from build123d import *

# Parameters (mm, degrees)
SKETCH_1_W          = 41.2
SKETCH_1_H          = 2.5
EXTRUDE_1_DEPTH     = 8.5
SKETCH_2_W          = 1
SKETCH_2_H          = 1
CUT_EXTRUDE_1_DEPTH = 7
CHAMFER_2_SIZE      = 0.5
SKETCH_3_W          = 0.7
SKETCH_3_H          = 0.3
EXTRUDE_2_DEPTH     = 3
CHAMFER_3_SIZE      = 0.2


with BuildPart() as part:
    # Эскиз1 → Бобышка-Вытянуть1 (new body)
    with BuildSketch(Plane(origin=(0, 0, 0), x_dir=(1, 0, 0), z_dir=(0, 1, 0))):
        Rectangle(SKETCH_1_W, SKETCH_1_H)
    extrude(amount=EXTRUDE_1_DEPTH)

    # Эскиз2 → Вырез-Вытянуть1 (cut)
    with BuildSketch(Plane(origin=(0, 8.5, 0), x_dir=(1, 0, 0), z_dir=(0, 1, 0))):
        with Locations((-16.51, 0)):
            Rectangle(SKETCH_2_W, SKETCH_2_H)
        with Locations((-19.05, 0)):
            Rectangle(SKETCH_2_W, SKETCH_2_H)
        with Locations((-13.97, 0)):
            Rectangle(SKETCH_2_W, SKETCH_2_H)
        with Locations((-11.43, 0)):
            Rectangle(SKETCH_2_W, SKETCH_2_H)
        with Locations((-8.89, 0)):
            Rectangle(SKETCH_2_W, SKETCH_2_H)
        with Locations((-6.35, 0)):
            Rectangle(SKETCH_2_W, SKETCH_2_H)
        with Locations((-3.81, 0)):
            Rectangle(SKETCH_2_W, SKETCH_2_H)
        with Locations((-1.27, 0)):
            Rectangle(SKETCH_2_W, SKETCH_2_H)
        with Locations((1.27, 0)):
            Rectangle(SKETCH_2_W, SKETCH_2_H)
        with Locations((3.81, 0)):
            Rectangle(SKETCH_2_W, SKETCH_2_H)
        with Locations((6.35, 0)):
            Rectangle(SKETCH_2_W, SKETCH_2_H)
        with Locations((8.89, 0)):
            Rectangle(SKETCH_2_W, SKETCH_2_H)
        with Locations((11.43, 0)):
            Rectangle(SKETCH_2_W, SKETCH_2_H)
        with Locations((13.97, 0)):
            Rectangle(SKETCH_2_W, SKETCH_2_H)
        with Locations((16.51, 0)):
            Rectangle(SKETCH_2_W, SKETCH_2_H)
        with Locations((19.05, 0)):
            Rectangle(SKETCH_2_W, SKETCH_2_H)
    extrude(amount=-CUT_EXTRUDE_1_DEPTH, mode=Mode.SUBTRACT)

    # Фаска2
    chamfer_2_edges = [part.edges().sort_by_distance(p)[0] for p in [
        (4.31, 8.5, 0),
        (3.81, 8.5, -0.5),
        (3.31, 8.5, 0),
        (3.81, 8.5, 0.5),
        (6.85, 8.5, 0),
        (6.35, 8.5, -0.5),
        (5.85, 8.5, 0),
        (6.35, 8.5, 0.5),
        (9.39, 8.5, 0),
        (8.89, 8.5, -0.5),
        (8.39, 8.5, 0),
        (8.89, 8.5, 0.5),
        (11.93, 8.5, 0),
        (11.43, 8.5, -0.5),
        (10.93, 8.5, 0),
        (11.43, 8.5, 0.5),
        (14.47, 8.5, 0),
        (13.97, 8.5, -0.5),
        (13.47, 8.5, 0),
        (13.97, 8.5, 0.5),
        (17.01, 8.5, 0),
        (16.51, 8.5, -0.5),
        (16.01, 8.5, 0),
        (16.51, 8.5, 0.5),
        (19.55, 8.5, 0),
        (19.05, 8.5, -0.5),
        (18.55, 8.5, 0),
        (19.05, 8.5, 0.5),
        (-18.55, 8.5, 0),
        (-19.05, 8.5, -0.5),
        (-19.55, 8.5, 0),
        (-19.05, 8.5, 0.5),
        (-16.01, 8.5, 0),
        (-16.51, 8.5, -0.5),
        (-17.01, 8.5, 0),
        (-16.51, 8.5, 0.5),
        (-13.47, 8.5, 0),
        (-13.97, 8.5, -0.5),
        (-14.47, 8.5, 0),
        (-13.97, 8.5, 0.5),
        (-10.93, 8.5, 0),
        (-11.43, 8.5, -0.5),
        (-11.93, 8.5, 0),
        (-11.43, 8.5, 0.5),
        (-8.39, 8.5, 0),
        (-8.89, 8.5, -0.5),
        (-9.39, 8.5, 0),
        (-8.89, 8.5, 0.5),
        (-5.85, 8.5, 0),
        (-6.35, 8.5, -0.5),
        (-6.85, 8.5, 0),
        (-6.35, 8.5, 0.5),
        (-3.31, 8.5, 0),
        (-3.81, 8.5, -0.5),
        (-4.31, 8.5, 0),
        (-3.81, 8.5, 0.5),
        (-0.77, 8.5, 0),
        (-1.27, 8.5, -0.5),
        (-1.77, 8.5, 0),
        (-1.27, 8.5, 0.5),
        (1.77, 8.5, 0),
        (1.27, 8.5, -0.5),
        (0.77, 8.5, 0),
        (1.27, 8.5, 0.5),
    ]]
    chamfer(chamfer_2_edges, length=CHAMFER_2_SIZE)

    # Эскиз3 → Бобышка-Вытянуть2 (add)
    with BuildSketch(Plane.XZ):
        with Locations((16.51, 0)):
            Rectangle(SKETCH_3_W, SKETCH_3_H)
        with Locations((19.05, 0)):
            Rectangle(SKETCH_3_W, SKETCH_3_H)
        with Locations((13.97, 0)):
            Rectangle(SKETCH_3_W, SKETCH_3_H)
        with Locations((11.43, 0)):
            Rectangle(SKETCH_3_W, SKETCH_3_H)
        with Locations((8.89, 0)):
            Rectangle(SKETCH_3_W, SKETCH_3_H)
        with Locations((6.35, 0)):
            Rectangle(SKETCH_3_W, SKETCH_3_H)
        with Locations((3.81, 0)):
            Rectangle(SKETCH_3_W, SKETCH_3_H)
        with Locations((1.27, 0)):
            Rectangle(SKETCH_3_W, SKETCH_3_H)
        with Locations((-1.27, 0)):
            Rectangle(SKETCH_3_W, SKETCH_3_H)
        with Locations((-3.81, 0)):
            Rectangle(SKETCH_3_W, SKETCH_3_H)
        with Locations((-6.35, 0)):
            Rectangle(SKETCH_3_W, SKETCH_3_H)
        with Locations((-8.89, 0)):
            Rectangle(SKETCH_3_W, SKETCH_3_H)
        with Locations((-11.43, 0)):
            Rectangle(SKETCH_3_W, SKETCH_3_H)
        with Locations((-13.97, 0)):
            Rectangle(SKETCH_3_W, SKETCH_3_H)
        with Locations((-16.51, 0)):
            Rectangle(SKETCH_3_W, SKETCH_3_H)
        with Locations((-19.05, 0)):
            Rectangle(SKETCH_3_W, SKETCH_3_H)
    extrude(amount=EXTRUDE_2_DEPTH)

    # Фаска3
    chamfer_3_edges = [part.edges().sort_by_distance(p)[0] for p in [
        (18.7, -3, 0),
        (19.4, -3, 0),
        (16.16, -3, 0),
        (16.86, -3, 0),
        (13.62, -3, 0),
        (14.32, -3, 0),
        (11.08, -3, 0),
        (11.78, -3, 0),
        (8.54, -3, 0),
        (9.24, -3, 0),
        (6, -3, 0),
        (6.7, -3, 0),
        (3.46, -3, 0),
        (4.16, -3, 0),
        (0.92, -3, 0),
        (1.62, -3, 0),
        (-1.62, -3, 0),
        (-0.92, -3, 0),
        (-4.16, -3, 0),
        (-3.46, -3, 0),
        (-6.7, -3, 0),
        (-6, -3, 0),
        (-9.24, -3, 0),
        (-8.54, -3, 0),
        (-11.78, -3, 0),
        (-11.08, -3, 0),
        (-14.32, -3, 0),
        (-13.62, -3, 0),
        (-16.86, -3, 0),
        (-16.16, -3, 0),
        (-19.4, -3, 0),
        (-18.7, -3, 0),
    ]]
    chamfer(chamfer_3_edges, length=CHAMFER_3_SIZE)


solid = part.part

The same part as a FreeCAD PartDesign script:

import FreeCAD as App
import Part
import Sketcher

V = App.Vector
Q = App.Units.Quantity


def edges_at(feature, points):
    """Names of the edges that pass closest to the given points."""
    edges = feature.Shape.Edges
    near = lambda p: min(range(len(edges)), key=lambda i: edges[i].distToShape(Part.Vertex(*p))[0])
    return sorted({f"Edge{near(p) + 1}" for p in points})


def add_polygon(sketch, points):
    """Adds a closed chain of lines whose ends are joined by coincident constraints."""
    first, n = sketch.GeometryCount, len(points)
    for a, b in zip(points, points[1:] + points[:1]):
        sketch.addGeometry(Part.LineSegment(App.Vector(*a, 0), App.Vector(*b, 0)), False)
    for i in range(n):
        sketch.addConstraint(Sketcher.Constraint("Coincident", first + i, 2, first + (i + 1) % n, 1))

doc = App.newDocument("Part")
body = doc.addObject("PartDesign::Body", "Body")

# Sketch on XZ plane
sketch1 = body.newObject("Sketcher::SketchObject", "Sketch")
sketch1.AttachmentSupport = (doc.getObject("XZ_Plane"), [""])
sketch1.MapMode = "FlatFace"
add_polygon(sketch1, [(-20.6, -1.2), (-20.6, 1.2), (20.6, 1.2), (20.6, -1.2)])  # lines 0-3
sketch1.addConstraint([
    Sketcher.Constraint("Vertical", 0),
    Sketcher.Constraint("Horizontal", 1),
    Sketcher.Constraint("Vertical", 2),
    Sketcher.Constraint("Horizontal", 3),
    Sketcher.Constraint("Symmetric", 0, 2, 2, 2, -1, 1),
    Sketcher.Constraint("DistanceX", 1, 1, 1, 2, Q("41.2 mm")),
    Sketcher.Constraint("DistanceY", 0, 1, 0, 2, Q("2.5 mm")),
])
pad1 = body.newObject("PartDesign::Pad", "Pad")
pad1.Profile = sketch1
pad1.Length = 8.5
pad1.Reversed = True

# Sketch on XZ plane
sketch2 = body.newObject("Sketcher::SketchObject", "Sketch001")
sketch2.AttachmentSupport = (doc.getObject("XZ_Plane"), [""])
sketch2.MapMode = "FlatFace"
sketch2.AttachmentOffset = App.Placement(V(0, 0, -8.5), App.Rotation())
add_polygon(sketch2, [(-17, -0.5), (-17, 0.5), (-16, 0.5), (-16, -0.5)])  # lines 0-3
add_polygon(sketch2, [(-19.6, -0.5), (-19.6, 0.5), (-18.6, 0.5), (-18.6, -0.5)])  # lines 4-7
add_polygon(sketch2, [(-14.5, -0.5), (-14.5, 0.5), (-13.5, 0.5), (-13.5, -0.5)])  # lines 8-11
add_polygon(sketch2, [(-11.9, -0.5), (-11.9, 0.5), (-10.9, 0.5), (-10.9, -0.5)])  # lines 12-15
add_polygon(sketch2, [(-9.4, -0.5), (-9.4, 0.5), (-8.4, 0.5), (-8.4, -0.5)])  # lines 16-19
add_polygon(sketch2, [(-6.8, -0.5), (-6.8, 0.5), (-5.8, 0.5), (-5.8, -0.5)])  # lines 20-23
add_polygon(sketch2, [(-4.3, -0.5), (-4.3, 0.5), (-3.3, 0.5), (-3.3, -0.5)])  # lines 24-27
add_polygon(sketch2, [(-1.8, -0.5), (-1.8, 0.5), (-0.8, 0.5), (-0.8, -0.5)])  # lines 28-31
add_polygon(sketch2, [(0.8, -0.5), (0.8, 0.5), (1.8, 0.5), (1.8, -0.5)])  # lines 32-35
add_polygon(sketch2, [(3.3, -0.5), (3.3, 0.5), (4.3, 0.5), (4.3, -0.5)])  # lines 36-39
add_polygon(sketch2, [(5.8, -0.5), (5.8, 0.5), (6.8, 0.5), (6.8, -0.5)])  # lines 40-43
add_polygon(sketch2, [(8.4, -0.5), (8.4, 0.5), (9.4, 0.5), (9.4, -0.5)])  # lines 44-47
add_polygon(sketch2, [(10.9, -0.5), (10.9, 0.5), (11.9, 0.5), (11.9, -0.5)])  # lines 48-51
add_polygon(sketch2, [(13.5, -0.5), (13.5, 0.5), (14.5, 0.5), (14.5, -0.5)])  # lines 52-55
add_polygon(sketch2, [(16, -0.5), (16, 0.5), (17, 0.5), (17, -0.5)])  # lines 56-59
add_polygon(sketch2, [(18.6, -0.5), (18.6, 0.5), (19.6, 0.5), (19.6, -0.5)])  # lines 60-63
sketch2.addConstraint([
    Sketcher.Constraint("Vertical", 0),
    Sketcher.Constraint("Horizontal", 1),
    Sketcher.Constraint("Vertical", 2),
    Sketcher.Constraint("Horizontal", 3),
    Sketcher.Constraint("Vertical", 4),
    Sketcher.Constraint("Horizontal", 5),
    Sketcher.Constraint("Vertical", 6),
    Sketcher.Constraint("Horizontal", 7),
    Sketcher.Constraint("Vertical", 8),
    Sketcher.Constraint("Horizontal", 9),
    Sketcher.Constraint("Vertical", 10),
    Sketcher.Constraint("Horizontal", 11),
    Sketcher.Constraint("Vertical", 12),
    Sketcher.Constraint("Horizontal", 13),
    Sketcher.Constraint("Vertical", 14),
    Sketcher.Constraint("Horizontal", 15),
    Sketcher.Constraint("Vertical", 16),
    Sketcher.Constraint("Horizontal", 17),
    Sketcher.Constraint("Vertical", 18),
    Sketcher.Constraint("Horizontal", 19),
    Sketcher.Constraint("Vertical", 20),
    Sketcher.Constraint("Horizontal", 21),
    Sketcher.Constraint("Vertical", 22),
    Sketcher.Constraint("Horizontal", 23),
    Sketcher.Constraint("Vertical", 24),
    Sketcher.Constraint("Horizontal", 25),
    Sketcher.Constraint("Vertical", 26),
    Sketcher.Constraint("Horizontal", 27),
    Sketcher.Constraint("Vertical", 28),
    Sketcher.Constraint("Horizontal", 29),
    Sketcher.Constraint("Vertical", 30),
    Sketcher.Constraint("Horizontal", 31),
    Sketcher.Constraint("Vertical", 32),
    Sketcher.Constraint("Horizontal", 33),
    Sketcher.Constraint("Vertical", 34),
    Sketcher.Constraint("Horizontal", 35),
    Sketcher.Constraint("Vertical", 36),
    Sketcher.Constraint("Horizontal", 37),
    Sketcher.Constraint("Vertical", 38),
    Sketcher.Constraint("Horizontal", 39),
    Sketcher.Constraint("Vertical", 40),
    Sketcher.Constraint("Horizontal", 41),
    Sketcher.Constraint("Vertical", 42),
    Sketcher.Constraint("Horizontal", 43),
    Sketcher.Constraint("Vertical", 44),
    Sketcher.Constraint("Horizontal", 45),
    Sketcher.Constraint("Vertical", 46),
    Sketcher.Constraint("Horizontal", 47),
    Sketcher.Constraint("Vertical", 48),
    Sketcher.Constraint("Horizontal", 49),
    Sketcher.Constraint("Vertical", 50),
    Sketcher.Constraint("Horizontal", 51),
    Sketcher.Constraint("Vertical", 52),
    Sketcher.Constraint("Horizontal", 53),
    Sketcher.Constraint("Vertical", 54),
    Sketcher.Constraint("Horizontal", 55),
    Sketcher.Constraint("Vertical", 56),
    Sketcher.Constraint("Horizontal", 57),
    Sketcher.Constraint("Vertical", 58),
    Sketcher.Constraint("Horizontal", 59),
    Sketcher.Constraint("Vertical", 60),
    Sketcher.Constraint("Horizontal", 61),
    Sketcher.Constraint("Vertical", 62),
    Sketcher.Constraint("Horizontal", 63),
    Sketcher.Constraint("Symmetric", 30, 2, 32, 2, -1, 1),
    Sketcher.Constraint("Symmetric", 28, 2, 34, 2, -1, 1),
    Sketcher.Constraint("Symmetric", 26, 2, 36, 2, -1, 1),
    Sketcher.Constraint("Symmetric", 24, 2, 38, 2, -1, 1),
    Sketcher.Constraint("Symmetric", 22, 2, 40, 2, -1, 1),
    Sketcher.Constraint("Symmetric", 20, 2, 42, 2, -1, 1),
    Sketcher.Constraint("Symmetric", 18, 2, 44, 2, -1, 1),
    Sketcher.Constraint("Symmetric", 16, 2, 46, 2, -1, 1),
    Sketcher.Constraint("Symmetric", 14, 2, 48, 2, -1, 1),
    Sketcher.Constraint("Symmetric", 12, 2, 50, 2, -1, 1),
    Sketcher.Constraint("Symmetric", 10, 2, 52, 2, -1, 1),
    Sketcher.Constraint("Symmetric", 8, 2, 54, 2, -1, 1),
    Sketcher.Constraint("Symmetric", 2, 2, 56, 2, -1, 1),
    Sketcher.Constraint("Symmetric", 0, 2, 58, 2, -1, 1),
    Sketcher.Constraint("Symmetric", 6, 2, 60, 2, -1, 1),
    Sketcher.Constraint("Symmetric", 4, 2, 62, 2, -1, 1),
    Sketcher.Constraint("Horizontal", 1, 2, 4, 2),
    Sketcher.Constraint("Horizontal", 3, 2, 6, 2),
    Sketcher.Constraint("Horizontal", 5, 2, 8, 2),
    Sketcher.Constraint("Horizontal", 7, 2, 10, 2),
    Sketcher.Constraint("Horizontal", 9, 2, 12, 2),
    Sketcher.Constraint("Horizontal", 11, 2, 14, 2),
    Sketcher.Constraint("Horizontal", 13, 2, 16, 2),
    Sketcher.Constraint("Horizontal", 15, 2, 18, 2),
    Sketcher.Constraint("Horizontal", 17, 2, 20, 2),
    Sketcher.Constraint("Horizontal", 19, 2, 22, 2),
    Sketcher.Constraint("Horizontal", 21, 2, 24, 2),
    Sketcher.Constraint("Horizontal", 23, 2, 26, 2),
    Sketcher.Constraint("Horizontal", 25, 2, 28, 2),
    Sketcher.Constraint("Horizontal", 27, 2, 30, 2),
    Sketcher.Constraint("Horizontal", 29, 2, 32, 2),
    Sketcher.Constraint("Equal", 3, 5),
    Sketcher.Constraint("Equal", 7, 9),
    Sketcher.Constraint("Equal", 11, 13),
    Sketcher.Constraint("Equal", 15, 17),
    Sketcher.Constraint("Equal", 19, 21),
    Sketcher.Constraint("Equal", 23, 25),
    Sketcher.Constraint("Equal", 27, 29),
    Sketcher.Constraint("Equal", 63, 0),
    Sketcher.Constraint("DistanceX", 1, 1, 1, 2, Q("1 mm")),
    Sketcher.Constraint("DistanceX", 0, 2, -1, 1, Q("17.01 mm")),
    Sketcher.Constraint("DistanceX", 4, 2, -1, 1, Q("19.55 mm")),
    Sketcher.Constraint("DistanceX", 8, 2, -1, 1, Q("14.47 mm")),
    Sketcher.Constraint("DistanceX", 12, 2, -1, 1, Q("11.93 mm")),
    Sketcher.Constraint("DistanceX", 16, 2, -1, 1, Q("9.39 mm")),
    Sketcher.Constraint("DistanceX", 20, 2, -1, 1, Q("6.85 mm")),
    Sketcher.Constraint("DistanceX", 24, 2, -1, 1, Q("4.31 mm")),
    Sketcher.Constraint("DistanceX", 28, 2, -1, 1, Q("1.77 mm")),
])
pocket1 = body.newObject("PartDesign::Pocket", "Pocket")
pocket1.Profile = sketch2
pocket1.Length = 7
pocket1.Reversed = True
doc.recompute()

chamfer = body.newObject("PartDesign::Chamfer", "Chamfer")
chamfer.Base = (pocket1, edges_at(pocket1, [
    (4.31, 8.5, 0),
    (3.81, 8.5, -0.5),
    (3.31, 8.5, 0),
    (3.81, 8.5, 0.5),
    (6.85, 8.5, 0),
    (6.35, 8.5, -0.5),
    (5.85, 8.5, 0),
    (6.35, 8.5, 0.5),
    (9.39, 8.5, 0),
    (8.89, 8.5, -0.5),
    (8.39, 8.5, 0),
    (8.89, 8.5, 0.5),
    (11.93, 8.5, 0),
    (11.43, 8.5, -0.5),
    (10.93, 8.5, 0),
    (11.43, 8.5, 0.5),
    (14.47, 8.5, 0),
    (13.97, 8.5, -0.5),
    (13.47, 8.5, 0),
    (13.97, 8.5, 0.5),
    (17.01, 8.5, 0),
    (16.51, 8.5, -0.5),
    (16.01, 8.5, 0),
    (16.51, 8.5, 0.5),
    (19.55, 8.5, 0),
    (19.05, 8.5, -0.5),
    (18.55, 8.5, 0),
    (19.05, 8.5, 0.5),
    (-18.55, 8.5, 0),
    (-19.05, 8.5, -0.5),
    (-19.55, 8.5, 0),
    (-19.05, 8.5, 0.5),
    (-16.01, 8.5, 0),
    (-16.51, 8.5, -0.5),
    (-17.01, 8.5, 0),
    (-16.51, 8.5, 0.5),
    (-13.47, 8.5, 0),
    (-13.97, 8.5, -0.5),
    (-14.47, 8.5, 0),
    (-13.97, 8.5, 0.5),
    (-10.93, 8.5, 0),
    (-11.43, 8.5, -0.5),
    (-11.93, 8.5, 0),
    (-11.43, 8.5, 0.5),
    (-8.39, 8.5, 0),
    (-8.89, 8.5, -0.5),
    (-9.39, 8.5, 0),
    (-8.89, 8.5, 0.5),
    (-5.85, 8.5, 0),
    (-6.35, 8.5, -0.5),
    (-6.85, 8.5, 0),
    (-6.35, 8.5, 0.5),
    (-3.31, 8.5, 0),
    (-3.81, 8.5, -0.5),
    (-4.31, 8.5, 0),
    (-3.81, 8.5, 0.5),
    (-0.77, 8.5, 0),
    (-1.27, 8.5, -0.5),
    (-1.77, 8.5, 0),
    (-1.27, 8.5, 0.5),
    (1.77, 8.5, 0),
    (1.27, 8.5, -0.5),
    (0.77, 8.5, 0),
    (1.27, 8.5, 0.5),
]))
chamfer.Size = 0.5

# Sketch on XZ plane
sketch3 = body.newObject("Sketcher::SketchObject", "Sketch002")
sketch3.AttachmentSupport = (doc.getObject("XZ_Plane"), [""])
sketch3.MapMode = "FlatFace"
add_polygon(sketch3, [(16.16, 0.15), (16.16, -0.15), (16.86, -0.15), (16.86, 0.15)])  # lines 0-3
add_polygon(sketch3, [(18.7, 0.15), (18.7, -0.15), (19.4, -0.15), (19.4, 0.15)])  # lines 4-7
add_polygon(sketch3, [(13.62, 0.15), (13.62, -0.15), (14.32, -0.15), (14.32, 0.15)])  # lines 8-11
add_polygon(sketch3, [(11.08, 0.15), (11.08, -0.15), (11.78, -0.15), (11.78, 0.15)])  # lines 12-15
add_polygon(sketch3, [(8.54, 0.15), (8.54, -0.15), (9.24, -0.15), (9.24, 0.15)])  # lines 16-19
add_polygon(sketch3, [(6, 0.15), (6, -0.15), (6.7, -0.15), (6.7, 0.15)])  # lines 20-23
add_polygon(sketch3, [(3.46, 0.15), (3.46, -0.15), (4.16, -0.15), (4.16, 0.15)])  # lines 24-27
add_polygon(sketch3, [(0.92, 0.15), (0.92, -0.15), (1.62, -0.15), (1.62, 0.15)])  # lines 28-31
add_polygon(sketch3, [(-1.62, 0.15), (-1.62, -0.15), (-0.92, -0.15), (-0.92, 0.15)])  # lines 32-35
add_polygon(sketch3, [(-4.16, 0.15), (-4.16, -0.15), (-3.46, -0.15), (-3.46, 0.15)])  # lines 36-39
add_polygon(sketch3, [(-6.7, 0.15), (-6.7, -0.15), (-6, -0.15), (-6, 0.15)])  # lines 40-43
add_polygon(sketch3, [(-9.24, 0.15), (-9.24, -0.15), (-8.54, -0.15), (-8.54, 0.15)])  # lines 44-47
add_polygon(sketch3, [(-11.78, 0.15), (-11.78, -0.15), (-11.08, -0.15), (-11.08, 0.15)])  # lines 48-51
add_polygon(sketch3, [(-14.32, 0.15), (-14.32, -0.15), (-13.62, -0.15), (-13.62, 0.15)])  # lines 52-55
add_polygon(sketch3, [(-16.86, 0.15), (-16.86, -0.15), (-16.16, -0.15), (-16.16, 0.15)])  # lines 56-59
add_polygon(sketch3, [(-19.4, 0.15), (-19.4, -0.15), (-18.7, -0.15), (-18.7, 0.15)])  # lines 60-63
sketch3.addConstraint([
    Sketcher.Constraint("Vertical", 0),
    Sketcher.Constraint("Horizontal", 1),
    Sketcher.Constraint("Vertical", 2),
    Sketcher.Constraint("Horizontal", 3),
    Sketcher.Constraint("Vertical", 4),
    Sketcher.Constraint("Horizontal", 5),
    Sketcher.Constraint("Vertical", 6),
    Sketcher.Constraint("Horizontal", 7),
    Sketcher.Constraint("Vertical", 8),
    Sketcher.Constraint("Horizontal", 9),
    Sketcher.Constraint("Vertical", 10),
    Sketcher.Constraint("Horizontal", 11),
    Sketcher.Constraint("Vertical", 12),
    Sketcher.Constraint("Horizontal", 13),
    Sketcher.Constraint("Vertical", 14),
    Sketcher.Constraint("Horizontal", 15),
    Sketcher.Constraint("Vertical", 16),
    Sketcher.Constraint("Horizontal", 17),
    Sketcher.Constraint("Vertical", 18),
    Sketcher.Constraint("Horizontal", 19),
    Sketcher.Constraint("Vertical", 20),
    Sketcher.Constraint("Horizontal", 21),
    Sketcher.Constraint("Vertical", 22),
    Sketcher.Constraint("Horizontal", 23),
    Sketcher.Constraint("Vertical", 24),
    Sketcher.Constraint("Horizontal", 25),
    Sketcher.Constraint("Vertical", 26),
    Sketcher.Constraint("Horizontal", 27),
    Sketcher.Constraint("Vertical", 28),
    Sketcher.Constraint("Horizontal", 29),
    Sketcher.Constraint("Vertical", 30),
    Sketcher.Constraint("Horizontal", 31),
    Sketcher.Constraint("Vertical", 32),
    Sketcher.Constraint("Horizontal", 33),
    Sketcher.Constraint("Vertical", 34),
    Sketcher.Constraint("Horizontal", 35),
    Sketcher.Constraint("Vertical", 36),
    Sketcher.Constraint("Horizontal", 37),
    Sketcher.Constraint("Vertical", 38),
    Sketcher.Constraint("Horizontal", 39),
    Sketcher.Constraint("Vertical", 40),
    Sketcher.Constraint("Horizontal", 41),
    Sketcher.Constraint("Vertical", 42),
    Sketcher.Constraint("Horizontal", 43),
    Sketcher.Constraint("Vertical", 44),
    Sketcher.Constraint("Horizontal", 45),
    Sketcher.Constraint("Vertical", 46),
    Sketcher.Constraint("Horizontal", 47),
    Sketcher.Constraint("Vertical", 48),
    Sketcher.Constraint("Horizontal", 49),
    Sketcher.Constraint("Vertical", 50),
    Sketcher.Constraint("Horizontal", 51),
    Sketcher.Constraint("Vertical", 52),
    Sketcher.Constraint("Horizontal", 53),
    Sketcher.Constraint("Vertical", 54),
    Sketcher.Constraint("Horizontal", 55),
    Sketcher.Constraint("Vertical", 56),
    Sketcher.Constraint("Horizontal", 57),
    Sketcher.Constraint("Vertical", 58),
    Sketcher.Constraint("Horizontal", 59),
    Sketcher.Constraint("Vertical", 60),
    Sketcher.Constraint("Horizontal", 61),
    Sketcher.Constraint("Vertical", 62),
    Sketcher.Constraint("Horizontal", 63),
    Sketcher.Constraint("Symmetric", 30, 2, 32, 2, -1, 1),
    Sketcher.Constraint("Symmetric", 28, 2, 34, 2, -1, 1),
    Sketcher.Constraint("Symmetric", 26, 2, 36, 2, -1, 1),
    Sketcher.Constraint("Symmetric", 24, 2, 38, 2, -1, 1),
    Sketcher.Constraint("Symmetric", 22, 2, 40, 2, -1, 1),
    Sketcher.Constraint("Symmetric", 20, 2, 42, 2, -1, 1),
    Sketcher.Constraint("Symmetric", 18, 2, 44, 2, -1, 1),
    Sketcher.Constraint("Symmetric", 16, 2, 46, 2, -1, 1),
    Sketcher.Constraint("Symmetric", 14, 2, 48, 2, -1, 1),
    Sketcher.Constraint("Symmetric", 12, 2, 50, 2, -1, 1),
    Sketcher.Constraint("Symmetric", 10, 2, 52, 2, -1, 1),
    Sketcher.Constraint("Symmetric", 8, 2, 54, 2, -1, 1),
    Sketcher.Constraint("Symmetric", 2, 2, 56, 2, -1, 1),
    Sketcher.Constraint("Symmetric", 0, 2, 58, 2, -1, 1),
    Sketcher.Constraint("Symmetric", 6, 2, 60, 2, -1, 1),
    Sketcher.Constraint("Symmetric", 4, 2, 62, 2, -1, 1),
    Sketcher.Constraint("Horizontal", 1, 2, 4, 2),
    Sketcher.Constraint("Horizontal", 3, 2, 6, 2),
    Sketcher.Constraint("Horizontal", 5, 2, 8, 2),
    Sketcher.Constraint("Horizontal", 7, 2, 10, 2),
    Sketcher.Constraint("Horizontal", 9, 2, 12, 2),
    Sketcher.Constraint("Horizontal", 11, 2, 14, 2),
    Sketcher.Constraint("Horizontal", 13, 2, 16, 2),
    Sketcher.Constraint("Horizontal", 15, 2, 18, 2),
    Sketcher.Constraint("Horizontal", 17, 2, 20, 2),
    Sketcher.Constraint("Horizontal", 19, 2, 22, 2),
    Sketcher.Constraint("Horizontal", 21, 2, 24, 2),
    Sketcher.Constraint("Horizontal", 23, 2, 26, 2),
    Sketcher.Constraint("Horizontal", 25, 2, 28, 2),
    Sketcher.Constraint("Horizontal", 27, 2, 30, 2),
    Sketcher.Constraint("Horizontal", 29, 2, 32, 2),
    Sketcher.Constraint("Equal", 3, 5),
    Sketcher.Constraint("Equal", 7, 9),
    Sketcher.Constraint("Equal", 11, 13),
    Sketcher.Constraint("Equal", 15, 17),
    Sketcher.Constraint("Equal", 19, 21),
    Sketcher.Constraint("Equal", 23, 25),
    Sketcher.Constraint("Equal", 27, 29),
    Sketcher.Constraint("DistanceX", 1, 1, 1, 2, Q("0.7 mm")),
    Sketcher.Constraint("DistanceY", 0, 2, 0, 1, Q("0.3 mm")),
    Sketcher.Constraint("DistanceX", -1, 1, 20, 2, Q("6 mm")),
    Sketcher.Constraint("DistanceX", -1, 1, 4, 2, Q("18.7 mm")),
    Sketcher.Constraint("DistanceX", -1, 1, 0, 2, Q("16.16 mm")),
    Sketcher.Constraint("DistanceX", -1, 1, 8, 2, Q("13.62 mm")),
    Sketcher.Constraint("DistanceX", -1, 1, 12, 2, Q("11.08 mm")),
    Sketcher.Constraint("DistanceX", -1, 1, 16, 2, Q("8.54 mm")),
    Sketcher.Constraint("DistanceX", -1, 1, 24, 2, Q("3.46 mm")),
    Sketcher.Constraint("DistanceX", -1, 1, 28, 2, Q("0.92 mm")),
])
pad2 = body.newObject("PartDesign::Pad", "Pad001")
pad2.Profile = sketch3
pad2.Length = 3
doc.recompute()

chamfer2 = body.newObject("PartDesign::Chamfer", "Chamfer001")
chamfer2.Base = (pad2, edges_at(pad2, [
    (18.7, -3, 0),
    (19.4, -3, 0),
    (16.16, -3, 0),
    (16.86, -3, 0),
    (13.62, -3, 0),
    (14.32, -3, 0),
    (11.08, -3, 0),
    (11.78, -3, 0),
    (8.54, -3, 0),
    (9.24, -3, 0),
    (6, -3, 0),
    (6.7, -3, 0),
    (3.46, -3, 0),
    (4.16, -3, 0),
    (0.92, -3, 0),
    (1.62, -3, 0),
    (-1.62, -3, 0),
    (-0.92, -3, 0),
    (-4.16, -3, 0),
    (-3.46, -3, 0),
    (-6.7, -3, 0),
    (-6, -3, 0),
    (-9.24, -3, 0),
    (-8.54, -3, 0),
    (-11.78, -3, 0),
    (-11.08, -3, 0),
    (-14.32, -3, 0),
    (-13.62, -3, 0),
    (-16.86, -3, 0),
    (-16.16, -3, 0),
    (-19.4, -3, 0),
    (-18.7, -3, 0),
]))
chamfer2.Size = 0.2

doc.recompute()
